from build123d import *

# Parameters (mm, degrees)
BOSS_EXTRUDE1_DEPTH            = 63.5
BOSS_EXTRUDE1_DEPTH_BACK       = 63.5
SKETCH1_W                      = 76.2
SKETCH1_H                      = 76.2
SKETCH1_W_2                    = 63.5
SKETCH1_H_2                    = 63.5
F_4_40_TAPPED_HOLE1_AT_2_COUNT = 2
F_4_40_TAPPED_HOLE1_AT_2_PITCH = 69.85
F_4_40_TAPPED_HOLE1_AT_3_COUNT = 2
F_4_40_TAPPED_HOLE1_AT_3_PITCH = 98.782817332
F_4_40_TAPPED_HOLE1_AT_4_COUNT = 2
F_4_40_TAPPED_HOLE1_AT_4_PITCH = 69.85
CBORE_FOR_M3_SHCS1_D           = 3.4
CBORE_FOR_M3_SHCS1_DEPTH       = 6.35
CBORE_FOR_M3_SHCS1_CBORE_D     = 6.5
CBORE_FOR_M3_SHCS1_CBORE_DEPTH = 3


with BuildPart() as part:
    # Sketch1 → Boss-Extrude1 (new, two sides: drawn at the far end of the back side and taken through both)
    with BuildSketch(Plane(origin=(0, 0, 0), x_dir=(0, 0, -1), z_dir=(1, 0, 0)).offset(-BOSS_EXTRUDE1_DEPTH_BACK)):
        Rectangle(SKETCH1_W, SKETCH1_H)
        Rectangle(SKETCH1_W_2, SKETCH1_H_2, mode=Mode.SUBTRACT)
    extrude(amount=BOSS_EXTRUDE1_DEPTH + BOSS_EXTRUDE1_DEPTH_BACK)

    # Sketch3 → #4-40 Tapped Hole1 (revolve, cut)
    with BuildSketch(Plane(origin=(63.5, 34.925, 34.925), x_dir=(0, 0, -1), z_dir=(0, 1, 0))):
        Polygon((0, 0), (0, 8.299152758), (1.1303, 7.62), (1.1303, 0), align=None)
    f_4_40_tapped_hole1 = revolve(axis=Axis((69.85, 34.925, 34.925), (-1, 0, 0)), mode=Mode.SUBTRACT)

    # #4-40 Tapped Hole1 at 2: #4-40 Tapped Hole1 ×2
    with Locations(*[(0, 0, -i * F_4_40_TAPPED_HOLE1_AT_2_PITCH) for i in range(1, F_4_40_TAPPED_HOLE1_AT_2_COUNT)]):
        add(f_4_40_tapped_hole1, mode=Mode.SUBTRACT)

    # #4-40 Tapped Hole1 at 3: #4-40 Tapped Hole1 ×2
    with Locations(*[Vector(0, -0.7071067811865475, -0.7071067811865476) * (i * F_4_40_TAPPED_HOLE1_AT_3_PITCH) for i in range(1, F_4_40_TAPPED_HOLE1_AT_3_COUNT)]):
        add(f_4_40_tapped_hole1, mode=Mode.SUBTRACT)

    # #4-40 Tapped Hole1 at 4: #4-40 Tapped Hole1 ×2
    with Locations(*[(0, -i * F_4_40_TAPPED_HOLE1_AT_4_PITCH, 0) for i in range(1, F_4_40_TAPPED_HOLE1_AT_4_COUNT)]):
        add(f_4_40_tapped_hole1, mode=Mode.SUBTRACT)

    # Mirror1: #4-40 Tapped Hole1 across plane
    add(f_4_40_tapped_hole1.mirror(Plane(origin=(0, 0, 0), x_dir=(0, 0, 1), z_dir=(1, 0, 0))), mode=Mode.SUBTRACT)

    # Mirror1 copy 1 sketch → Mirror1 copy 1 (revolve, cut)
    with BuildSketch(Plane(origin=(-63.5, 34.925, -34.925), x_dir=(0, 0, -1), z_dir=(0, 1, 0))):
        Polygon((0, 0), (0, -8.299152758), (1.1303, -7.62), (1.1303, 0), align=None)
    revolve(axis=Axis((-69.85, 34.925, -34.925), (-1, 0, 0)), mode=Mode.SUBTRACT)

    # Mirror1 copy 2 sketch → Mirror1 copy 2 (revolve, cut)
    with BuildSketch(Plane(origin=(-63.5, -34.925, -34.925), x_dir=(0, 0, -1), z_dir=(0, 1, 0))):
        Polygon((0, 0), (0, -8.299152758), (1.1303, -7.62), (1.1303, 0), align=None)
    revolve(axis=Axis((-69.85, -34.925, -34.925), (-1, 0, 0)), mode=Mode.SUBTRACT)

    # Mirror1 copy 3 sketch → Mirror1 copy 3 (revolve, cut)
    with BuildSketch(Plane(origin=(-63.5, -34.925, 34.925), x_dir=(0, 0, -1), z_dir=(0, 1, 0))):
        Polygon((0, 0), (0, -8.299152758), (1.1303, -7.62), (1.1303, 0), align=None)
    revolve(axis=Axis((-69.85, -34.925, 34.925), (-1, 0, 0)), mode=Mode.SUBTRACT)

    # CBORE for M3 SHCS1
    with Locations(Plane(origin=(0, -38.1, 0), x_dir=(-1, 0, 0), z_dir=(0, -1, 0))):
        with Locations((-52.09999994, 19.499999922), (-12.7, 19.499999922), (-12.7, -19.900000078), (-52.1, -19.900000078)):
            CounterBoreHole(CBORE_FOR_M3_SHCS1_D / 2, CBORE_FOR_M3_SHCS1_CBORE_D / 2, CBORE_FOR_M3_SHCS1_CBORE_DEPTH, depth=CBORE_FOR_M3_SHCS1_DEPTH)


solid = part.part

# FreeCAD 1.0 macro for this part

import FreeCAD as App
import Part
import Sketcher

V = App.Vector
Q = App.Units.Quantity

doc = App.newDocument("Part")
body = doc.addObject("PartDesign::Body", "Body")

# Sketch on YZ plane
sketch1 = doc.addObject("Sketcher::SketchObject", "Sketch")
body.addObject(sketch1)
sketch1.AttachmentSupport = (doc.YZ_Plane, [""])
sketch1.MapMode = "FlatFace"
sketch1.addGeometry(Part.LineSegment(V(38, 38, 0), V(-38, 38, 0)), False)
sketch1.addGeometry(Part.LineSegment(V(-38, 38, 0), V(-38, -38, 0)), False)
sketch1.addGeometry(Part.LineSegment(V(-38, -38, 0), V(38, -38, 0)), False)
sketch1.addGeometry(Part.LineSegment(V(38, -38, 0), V(38, 38, 0)), False)
sketch1.addGeometry(Part.LineSegment(V(-32, -32, 0), V(-32, 32, 0)), False)
sketch1.addGeometry(Part.LineSegment(V(-32, 32, 0), V(32, 32, 0)), False)
sketch1.addGeometry(Part.LineSegment(V(32, 32, 0), V(32, -32, 0)), False)
sketch1.addGeometry(Part.LineSegment(V(32, -32, 0), V(-32, -32, 0)), False)
sketch1.addConstraint(Sketcher.Constraint("Coincident", 0, 2, 1, 1))
sketch1.addConstraint(Sketcher.Constraint("Coincident", 1, 2, 2, 1))
sketch1.addConstraint(Sketcher.Constraint("Coincident", 2, 2, 3, 1))
sketch1.addConstraint(Sketcher.Constraint("Coincident", 3, 2, 0, 1))
sketch1.addConstraint(Sketcher.Constraint("Coincident", 4, 2, 5, 1))
sketch1.addConstraint(Sketcher.Constraint("Coincident", 5, 2, 6, 1))
sketch1.addConstraint(Sketcher.Constraint("Coincident", 6, 2, 7, 1))
sketch1.addConstraint(Sketcher.Constraint("Coincident", 7, 2, 4, 1))
sketch1.addConstraint(Sketcher.Constraint("Horizontal", 0))
sketch1.addConstraint(Sketcher.Constraint("Vertical", 1))
sketch1.addConstraint(Sketcher.Constraint("Horizontal", 2))
sketch1.addConstraint(Sketcher.Constraint("Vertical", 3))
sketch1.addConstraint(Sketcher.Constraint("Vertical", 4))
sketch1.addConstraint(Sketcher.Constraint("Horizontal", 5))
sketch1.addConstraint(Sketcher.Constraint("Vertical", 6))
sketch1.addConstraint(Sketcher.Constraint("Horizontal", 7))
sketch1.addConstraint(Sketcher.Constraint("Symmetric", 0, 2, 2, 2, -1, 1))
sketch1.addConstraint(Sketcher.Constraint("Symmetric", 4, 2, 6, 2, -1, 1))
sketch1.addConstraint(Sketcher.Constraint("Equal", 2, 1))
sketch1.addConstraint(Sketcher.Constraint("Equal", 7, 4))
sketch1.addConstraint(Sketcher.Constraint("DistanceX", 0, 2, 0, 1, Q("3 in")))
sketch1.addConstraint(Sketcher.Constraint("DistanceX", 5, 1, 5, 2, Q("2.5 in")))
pad1 = doc.addObject("PartDesign::Pad", "Pad")
body.addObject(pad1)
pad1.Profile = sketch1
pad1.Type = "TwoLengths"
pad1.Length = Q("2.5 in")
pad1.Length2 = Q("2.5 in")

# Sketch on XZ plane
sketch2 = doc.addObject("Sketcher::SketchObject", "Sketch001")
body.addObject(sketch2)
sketch2.AttachmentSupport = (doc.XZ_Plane, [""])
sketch2.MapMode = "FlatFace"
sketch2.AttachmentOffset = App.Placement(V(0, 0, -1.375 * 25.4), App.Rotation())
sketch2.addGeometry(Part.LineSegment(V(55.2, 34.9, 0), V(63.5, 34.9, 0)), False)
sketch2.addGeometry(Part.LineSegment(V(63.5, 34.9, 0), V(63.5, 33.8, 0)), False)
sketch2.addGeometry(Part.LineSegment(V(63.5, 33.8, 0), V(55.9, 33.8, 0)), False)
sketch2.addGeometry(Part.LineSegment(V(55.9, 33.8, 0), V(55.2, 34.9, 0)), False)
sketch2.addGeometry(Part.LineSegment(V(63.5, 34.9, 0), V(55.2, 34.9, 0)), True)  # axis
sketch2.addConstraint(Sketcher.Constraint("Coincident", 0, 2, 1, 1))
sketch2.addConstraint(Sketcher.Constraint("Coincident", 1, 2, 2, 1))
sketch2.addConstraint(Sketcher.Constraint("Coincident", 2, 2, 3, 1))
sketch2.addConstraint(Sketcher.Constraint("Coincident", 3, 2, 0, 1))
sketch2.addConstraint(Sketcher.Constraint("Horizontal", 0))
sketch2.addConstraint(Sketcher.Constraint("Vertical", 1))
sketch2.addConstraint(Sketcher.Constraint("Horizontal", 2))
sketch2.addConstraint(Sketcher.Constraint("Horizontal", 4))
sketch2.addConstraint(Sketcher.Constraint("Coincident", 4, 1, 0, 2))
sketch2.addConstraint(Sketcher.Constraint("Equal", 0, 4))
sketch2.addConstraint(Sketcher.Constraint("DistanceX", 2, 2, 2, 1, Q("0.3 in")))
sketch2.addConstraint(Sketcher.Constraint("Angle", 3, Q("121 deg")))
sketch2.addConstraint(Sketcher.Constraint("DistanceX", -1, 1, 0, 2, Q("2.5 in")))
sketch2.addConstraint(Sketcher.Constraint("DistanceY", 1, 2, 1, 1, Q("0.0445 in")))
sketch2.addConstraint(Sketcher.Constraint("DistanceY", -1, 1, 0, 2, Q("1.375 in")))
groove = doc.addObject("PartDesign::Groove", "Groove")
body.addObject(groove)
groove.Profile = sketch2
groove.ReferenceAxis = (sketch2, ["Axis0"])
groove.Angle = 360
doc.recompute()

linearpattern = doc.addObject("PartDesign::LinearPattern", "LinearPattern")
body.addObject(linearpattern)
linearpattern.Originals = [groove]
linearpattern.Direction = (doc.Z_Axis, [""])
linearpattern.Mode = "offset"
linearpattern.Offset = Q("2.75 in")
linearpattern.Occurrences = 2
linearpattern.Reversed = True
body.Tip = linearpattern
doc.recompute()

datumline = doc.addObject("PartDesign::Line", "DatumLine")
body.addObject(datumline)
datumline.Placement = App.Placement(V(0, 0, 0), App.Rotation(V(0, 0, 1), V(0, -0.707106781, -0.707106781)))
linearpattern2 = doc.addObject("PartDesign::LinearPattern", "LinearPattern001")
body.addObject(linearpattern2)
linearpattern2.Originals = [groove]
linearpattern2.Direction = (datumline, [""])
linearpattern2.Mode = "offset"
linearpattern2.Offset = 98.782817
linearpattern2.Occurrences = 2
body.Tip = linearpattern2
doc.recompute()

linearpattern3 = doc.addObject("PartDesign::LinearPattern", "LinearPattern002")
body.addObject(linearpattern3)
linearpattern3.Originals = [groove]
linearpattern3.Direction = (doc.Y_Axis, [""])
linearpattern3.Mode = "offset"
linearpattern3.Offset = Q("2.75 in")
linearpattern3.Occurrences = 2
linearpattern3.Reversed = True
body.Tip = linearpattern3
doc.recompute()

mirrored = doc.addObject("PartDesign::Mirrored", "Mirrored")
body.addObject(mirrored)
mirrored.Originals = [groove]
mirrored.MirrorPlane = (doc.YZ_Plane, [""])
body.Tip = mirrored

# Sketch on XZ plane
sketch3 = doc.addObject("Sketcher::SketchObject", "Sketch002")
body.addObject(sketch3)
sketch3.AttachmentSupport = (doc.XZ_Plane, [""])
sketch3.MapMode = "FlatFace"
sketch3.AttachmentOffset = App.Placement(V(0, 0, -1.375 * 25.4), App.Rotation())
sketch3.addGeometry(Part.LineSegment(V(-63.5, -34.9, 0), V(-55.2, -34.9, 0)), False)
sketch3.addGeometry(Part.LineSegment(V(-55.2, -34.9, 0), V(-55.9, -36.1, 0)), False)
sketch3.addGeometry(Part.LineSegment(V(-55.9, -36.1, 0), V(-63.5, -36.1, 0)), False)
sketch3.addGeometry(Part.LineSegment(V(-63.5, -36.1, 0), V(-63.5, -34.9, 0)), False)
sketch3.addGeometry(Part.LineSegment(V(-55.2, -34.9, 0), V(-63.5, -34.9, 0)), True)  # axis
sketch3.addConstraint(Sketcher.Constraint("Coincident", 0, 2, 1, 1))
sketch3.addConstraint(Sketcher.Constraint("Coincident", 1, 2, 2, 1))
sketch3.addConstraint(Sketcher.Constraint("Coincident", 2, 2, 3, 1))
sketch3.addConstraint(Sketcher.Constraint("Coincident", 3, 2, 0, 1))
sketch3.addConstraint(Sketcher.Constraint("Horizontal", 0))
sketch3.addConstraint(Sketcher.Constraint("Horizontal", 2))
sketch3.addConstraint(Sketcher.Constraint("Vertical", 3))
sketch3.addConstraint(Sketcher.Constraint("Horizontal", 4))
sketch3.addConstraint(Sketcher.Constraint("Coincident", 4, 1, 0, 2))
sketch3.addConstraint(Sketcher.Constraint("Vertical", 2, 2, 4, 2))
sketch3.addConstraint(Sketcher.Constraint("DistanceX", 2, 2, 2, 1, Q("0.3 in")))
sketch3.addConstraint(Sketcher.Constraint("Angle", 1, Q("-121 deg")))
sketch3.addConstraint(Sketcher.Constraint("DistanceX", 1, 2, -1, 1, Q("2.2 in")))
sketch3.addConstraint(Sketcher.Constraint("DistanceY", 3, 1, 3, 2, Q("0.0445 in")))
sketch3.addConstraint(Sketcher.Constraint("DistanceY", 0, 2, -1, 1, Q("1.375 in")))
groove2 = doc.addObject("PartDesign::Groove", "Groove001")
body.addObject(groove2)
groove2.Profile = sketch3
groove2.ReferenceAxis = (sketch3, ["Axis0"])
groove2.Angle = 360

# Sketch on XZ plane
sketch4 = doc.addObject("Sketcher::SketchObject", "Sketch003")
body.addObject(sketch4)
sketch4.AttachmentSupport = (doc.XZ_Plane, [""])
sketch4.MapMode = "FlatFace"
sketch4.AttachmentOffset = App.Placement(V(0, 0, 1.375 * 25.4), App.Rotation())
sketch4.addGeometry(Part.LineSegment(V(-63.5, -34.9, 0), V(-55.2, -34.9, 0)), False)
sketch4.addGeometry(Part.LineSegment(V(-55.2, -34.9, 0), V(-55.9, -36.1, 0)), False)
sketch4.addGeometry(Part.LineSegment(V(-55.9, -36.1, 0), V(-63.5, -36.1, 0)), False)
sketch4.addGeometry(Part.LineSegment(V(-63.5, -36.1, 0), V(-63.5, -34.9, 0)), False)
sketch4.addGeometry(Part.LineSegment(V(-55.2, -34.9, 0), V(-63.5, -34.9, 0)), True)  # axis
sketch4.addConstraint(Sketcher.Constraint("Coincident", 0, 2, 1, 1))
sketch4.addConstraint(Sketcher.Constraint("Coincident", 1, 2, 2, 1))
sketch4.addConstraint(Sketcher.Constraint("Coincident", 2, 2, 3, 1))
sketch4.addConstraint(Sketcher.Constraint("Coincident", 3, 2, 0, 1))
sketch4.addConstraint(Sketcher.Constraint("Horizontal", 0))
sketch4.addConstraint(Sketcher.Constraint("Horizontal", 2))
sketch4.addConstraint(Sketcher.Constraint("Vertical", 3))
sketch4.addConstraint(Sketcher.Constraint("Horizontal", 4))
sketch4.addConstraint(Sketcher.Constraint("Coincident", 4, 1, 0, 2))
sketch4.addConstraint(Sketcher.Constraint("Vertical", 2, 2, 4, 2))
sketch4.addConstraint(Sketcher.Constraint("DistanceX", 2, 2, 2, 1, Q("0.3 in")))
sketch4.addConstraint(Sketcher.Constraint("Angle", 1, Q("-121 deg")))
sketch4.addConstraint(Sketcher.Constraint("DistanceX", 1, 2, -1, 1, Q("2.2 in")))
sketch4.addConstraint(Sketcher.Constraint("DistanceY", 3, 1, 3, 2, Q("0.0445 in")))
sketch4.addConstraint(Sketcher.Constraint("DistanceY", 0, 2, -1, 1, Q("1.375 in")))
groove3 = doc.addObject("PartDesign::Groove", "Groove002")
body.addObject(groove3)
groove3.Profile = sketch4
groove3.ReferenceAxis = (sketch4, ["Axis0"])
groove3.Angle = 360

# Sketch on XZ plane
sketch5 = doc.addObject("Sketcher::SketchObject", "Sketch004")
body.addObject(sketch5)
sketch5.AttachmentSupport = (doc.XZ_Plane, [""])
sketch5.MapMode = "FlatFace"
sketch5.AttachmentOffset = App.Placement(V(0, 0, 1.375 * 25.4), App.Rotation())
sketch5.addGeometry(Part.LineSegment(V(-63.5, 34.9, 0), V(-55.2, 34.9, 0)), False)
sketch5.addGeometry(Part.LineSegment(V(-55.2, 34.9, 0), V(-55.9, 33.8, 0)), False)
sketch5.addGeometry(Part.LineSegment(V(-55.9, 33.8, 0), V(-63.5, 33.8, 0)), False)
sketch5.addGeometry(Part.LineSegment(V(-63.5, 33.8, 0), V(-63.5, 34.9, 0)), False)
sketch5.addGeometry(Part.LineSegment(V(-55.2, 34.9, 0), V(-63.5, 34.9, 0)), True)  # axis
sketch5.addConstraint(Sketcher.Constraint("Coincident", 0, 2, 1, 1))
sketch5.addConstraint(Sketcher.Constraint("Coincident", 1, 2, 2, 1))
sketch5.addConstraint(Sketcher.Constraint("Coincident", 2, 2, 3, 1))
sketch5.addConstraint(Sketcher.Constraint("Coincident", 3, 2, 0, 1))
sketch5.addConstraint(Sketcher.Constraint("Horizontal", 0))
sketch5.addConstraint(Sketcher.Constraint("Horizontal", 2))
sketch5.addConstraint(Sketcher.Constraint("Vertical", 3))
sketch5.addConstraint(Sketcher.Constraint("Horizontal", 4))
sketch5.addConstraint(Sketcher.Constraint("Coincident", 4, 1, 0, 2))
sketch5.addConstraint(Sketcher.Constraint("Vertical", 2, 2, 4, 2))
sketch5.addConstraint(Sketcher.Constraint("DistanceX", 2, 2, 2, 1, Q("0.3 in")))
sketch5.addConstraint(Sketcher.Constraint("Angle", 1, Q("-121 deg")))
sketch5.addConstraint(Sketcher.Constraint("DistanceX", 1, 2, -1, 1, Q("2.2 in")))
sketch5.addConstraint(Sketcher.Constraint("DistanceY", 3, 1, 3, 2, Q("0.0445 in")))
sketch5.addConstraint(Sketcher.Constraint("DistanceY", -1, 1, 0, 2, Q("1.375 in")))
groove4 = doc.addObject("PartDesign::Groove", "Groove003")
body.addObject(groove4)
groove4.Profile = sketch5
groove4.ReferenceAxis = (sketch5, ["Axis0"])
groove4.Angle = 360

# Sketch on XZ plane
sketch6 = doc.addObject("Sketcher::SketchObject", "Sketch005")
body.addObject(sketch6)
sketch6.AttachmentSupport = (doc.XZ_Plane, [""])
sketch6.MapMode = "FlatFace"
sketch6.AttachmentOffset = App.Placement(V(0, 0, 1.5 * 25.4), App.Rotation())
sketch6.addGeometry(Part.Circle(V(52.1, -19.5, 0), V(0, 0, 1), 1.7), False)
sketch6.addGeometry(Part.Circle(V(12.7, -19.5, 0), V(0, 0, 1), 1.7), False)
sketch6.addGeometry(Part.Circle(V(12.7, 19.9, 0), V(0, 0, 1), 1.7), False)
sketch6.addGeometry(Part.Circle(V(52.1, 19.9, 0), V(0, 0, 1), 1.7), False)
sketch6.addConstraint(Sketcher.Constraint("Equal", 0, 1))
sketch6.addConstraint(Sketcher.Constraint("Equal", 1, 2))
sketch6.addConstraint(Sketcher.Constraint("Equal", 2, 3))
sketch6.addConstraint(Sketcher.Constraint("Horizontal", 0, 3, 1, 3))
sketch6.addConstraint(Sketcher.Constraint("Horizontal", 2, 3, 3, 3))
sketch6.addConstraint(Sketcher.Constraint("Vertical", 1, 3, 2, 3))
sketch6.addConstraint(Sketcher.Constraint("Vertical", 0, 3, 3, 3))
sketch6.addConstraint(Sketcher.Constraint("DistanceX", -1, 1, 1, 3, Q("0.5 in")))
sketch6.addConstraint(Sketcher.Constraint("Diameter", 0, 3.4))
sketch6.addConstraint(Sketcher.Constraint("DistanceX", -1, 1, 0, 3, 52.1))
sketch6.addConstraint(Sketcher.Constraint("DistanceY", 0, 3, -1, 1, 19.5))
sketch6.addConstraint(Sketcher.Constraint("DistanceY", -1, 1, 2, 3, 19.9))
doc.recompute()
hole = doc.addObject("PartDesign::Hole", "Hole")
body.addObject(hole)
hole.Profile = sketch6
hole.ThreadType = "None"
hole.Diameter = 3.4
hole.DepthType = "Dimension"
hole.Depth = Q("0.25 in")
hole.DrillPoint = "Flat"
hole.HoleCutType = "Counterbore"
hole.HoleCutDiameter = 6.5
hole.HoleCutDepth = 3

doc.recompute()
